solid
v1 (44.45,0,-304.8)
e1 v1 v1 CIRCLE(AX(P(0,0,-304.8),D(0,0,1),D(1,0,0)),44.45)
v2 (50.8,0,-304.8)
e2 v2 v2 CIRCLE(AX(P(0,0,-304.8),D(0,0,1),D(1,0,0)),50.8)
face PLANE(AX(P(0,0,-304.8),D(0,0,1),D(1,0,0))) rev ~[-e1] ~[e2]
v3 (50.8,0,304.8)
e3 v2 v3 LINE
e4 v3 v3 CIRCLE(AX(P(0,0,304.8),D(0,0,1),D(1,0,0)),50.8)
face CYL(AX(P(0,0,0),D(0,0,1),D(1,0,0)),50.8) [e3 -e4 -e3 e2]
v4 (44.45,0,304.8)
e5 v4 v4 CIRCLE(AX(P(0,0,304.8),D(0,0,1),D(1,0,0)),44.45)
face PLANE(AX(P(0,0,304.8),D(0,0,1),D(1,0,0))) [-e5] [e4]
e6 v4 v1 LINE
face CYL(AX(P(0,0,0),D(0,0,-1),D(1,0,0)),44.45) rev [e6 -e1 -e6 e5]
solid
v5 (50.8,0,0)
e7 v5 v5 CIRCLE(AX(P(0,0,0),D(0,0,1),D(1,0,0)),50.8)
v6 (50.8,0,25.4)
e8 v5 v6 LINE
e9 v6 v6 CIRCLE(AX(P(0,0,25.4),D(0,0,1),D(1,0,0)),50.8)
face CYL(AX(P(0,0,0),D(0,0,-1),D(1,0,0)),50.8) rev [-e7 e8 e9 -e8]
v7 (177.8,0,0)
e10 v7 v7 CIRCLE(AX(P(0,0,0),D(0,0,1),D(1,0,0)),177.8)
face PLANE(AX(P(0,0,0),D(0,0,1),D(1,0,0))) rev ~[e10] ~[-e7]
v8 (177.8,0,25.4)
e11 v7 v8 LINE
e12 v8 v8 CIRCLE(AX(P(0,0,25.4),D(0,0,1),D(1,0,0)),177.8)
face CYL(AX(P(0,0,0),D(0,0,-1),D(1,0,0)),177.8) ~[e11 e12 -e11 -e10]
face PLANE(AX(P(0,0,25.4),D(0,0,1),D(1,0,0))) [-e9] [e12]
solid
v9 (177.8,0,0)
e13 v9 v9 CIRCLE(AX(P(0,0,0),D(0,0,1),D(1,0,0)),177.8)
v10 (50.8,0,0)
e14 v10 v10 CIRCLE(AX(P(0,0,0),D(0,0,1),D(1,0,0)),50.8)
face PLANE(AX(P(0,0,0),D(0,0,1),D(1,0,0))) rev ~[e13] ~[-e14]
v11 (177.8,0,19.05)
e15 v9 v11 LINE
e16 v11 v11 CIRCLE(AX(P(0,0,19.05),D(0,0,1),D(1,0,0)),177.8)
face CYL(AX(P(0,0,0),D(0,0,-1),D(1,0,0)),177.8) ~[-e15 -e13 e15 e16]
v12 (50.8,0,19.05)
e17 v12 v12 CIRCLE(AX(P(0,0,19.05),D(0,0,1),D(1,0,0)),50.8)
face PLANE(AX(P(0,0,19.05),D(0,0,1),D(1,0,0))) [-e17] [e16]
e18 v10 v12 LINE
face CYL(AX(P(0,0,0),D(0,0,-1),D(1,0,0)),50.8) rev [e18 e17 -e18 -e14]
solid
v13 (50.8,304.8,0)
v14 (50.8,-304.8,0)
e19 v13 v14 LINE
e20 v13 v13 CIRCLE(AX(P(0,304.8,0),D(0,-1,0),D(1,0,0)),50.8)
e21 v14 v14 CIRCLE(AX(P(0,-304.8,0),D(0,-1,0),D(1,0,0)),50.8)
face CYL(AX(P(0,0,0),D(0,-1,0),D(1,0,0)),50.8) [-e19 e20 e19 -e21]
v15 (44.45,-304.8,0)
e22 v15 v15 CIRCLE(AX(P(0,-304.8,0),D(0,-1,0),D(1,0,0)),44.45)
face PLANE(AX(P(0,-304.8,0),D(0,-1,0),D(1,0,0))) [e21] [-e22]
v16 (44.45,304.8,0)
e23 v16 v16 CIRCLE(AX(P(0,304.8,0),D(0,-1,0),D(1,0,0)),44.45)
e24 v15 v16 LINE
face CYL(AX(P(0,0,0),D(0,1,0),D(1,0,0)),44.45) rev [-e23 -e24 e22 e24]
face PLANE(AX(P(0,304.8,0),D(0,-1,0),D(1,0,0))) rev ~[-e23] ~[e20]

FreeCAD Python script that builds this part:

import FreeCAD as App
import Part
import Sketcher
from FreeCAD import Vector
Q = App.Units.Quantity

doc = App.newDocument("Part")
body = doc.addObject("PartDesign::Body", "Body")

# Sketch on XZ plane
sketch1 = body.newObject("Sketcher::SketchObject", "Sketch")
sketch1.AttachmentSupport = (doc.getObject("XZ_Plane"), [""])
sketch1.MapMode = "FlatFace"
sketch1.addGeometry(Part.Circle(Vector(0, 0, 0), Vector(0, 0, 1), 50.8), False)
sketch1.addGeometry(Part.Circle(Vector(0, 0, 0), Vector(0, 0, 1), 44.45), False)
sketch1.addConstraint(Sketcher.Constraint("Coincident", 0, 3, -1, 1))
sketch1.addConstraint(Sketcher.Constraint("Coincident", 1, 3, -1, 1))
sketch1.addConstraint(Sketcher.Constraint("Diameter", 0, Q("4 in")))
sketch1.addConstraint(Sketcher.Constraint("Diameter", 1, Q("3.5 in")))
pad1 = body.newObject("PartDesign::Pad", "Pad")
pad1.Profile = sketch1
pad1.Length = Q("24 in")
pad1.Midplane = True
body2 = doc.addObject("PartDesign::Body", "Body001")

# Sketch on XY plane
sketch2 = body2.newObject("Sketcher::SketchObject", "Sketch001")
sketch2.AttachmentSupport = (doc.getObject("XY_Plane001"), [""])
sketch2.MapMode = "FlatFace"
sketch2.addGeometry(Part.Circle(Vector(0, 0, 0), Vector(0, 0, 1), 50.8), False)
sketch2.addGeometry(Part.Circle(Vector(0, 0, 0), Vector(0, 0, 1), 44.45), False)
sketch2.addConstraint(Sketcher.Constraint("Coincident", 0, 3, -1, 1))
sketch2.addConstraint(Sketcher.Constraint("Coincident", 1, 3, -1, 1))
sketch2.addConstraint(Sketcher.Constraint("Diameter", 0, Q("4 in")))
sketch2.addConstraint(Sketcher.Constraint("Diameter", 1, Q("3.5 in")))
pad2 = body2.newObject("PartDesign::Pad", "Pad001")
pad2.Profile = sketch2
pad2.Length = Q("24 in")
pad2.Midplane = True
body3 = doc.addObject("PartDesign::Body", "Body002")

# Sketch on XY plane
sketch3 = body3.newObject("Sketcher::SketchObject", "Sketch002")
sketch3.AttachmentSupport = (doc.getObject("XY_Plane002"), [""])
sketch3.MapMode = "FlatFace"
sketch3.addGeometry(Part.Circle(Vector(0, 0, 0), Vector(0, 0, 1), 177.8), False)
sketch3.addGeometry(Part.Circle(Vector(0, 0, 0), Vector(0, 0, 1), 50.8), False)
sketch3.addConstraint(Sketcher.Constraint("Coincident", 0, 3, -1, 1))
sketch3.addConstraint(Sketcher.Constraint("Coincident", 1, 3, -1, 1))
sketch3.addConstraint(Sketcher.Constraint("Diameter", 0, Q("14 in")))
sketch3.addConstraint(Sketcher.Constraint("Diameter", 1, Q("4 in")))
pad3 = body3.newObject("PartDesign::Pad", "Pad002")
pad3.Profile = sketch3
pad3.Length = Q("0.75 in")
body4 = doc.addObject("PartDesign::Body", "Body003")

# Sketch on XY plane
sketch4 = body4.newObject("Sketcher::SketchObject", "Sketch003")
sketch4.AttachmentSupport = (doc.getObject("XY_Plane003"), [""])
sketch4.MapMode = "FlatFace"
sketch4.addGeometry(Part.Circle(Vector(0, 0, 0), Vector(0, 0, 1), 177.8), False)
sketch4.addGeometry(Part.Circle(Vector(0, 0, 0), Vector(0, 0, 1), 50.8), False)
sketch4.addConstraint(Sketcher.Constraint("Coincident", 0, 3, -1, 1))
sketch4.addConstraint(Sketcher.Constraint("Coincident", 1, 3, -1, 1))
sketch4.addConstraint(Sketcher.Constraint("Diameter", 0, Q("14 in")))
sketch4.addConstraint(Sketcher.Constraint("Diameter", 1, Q("4 in")))
pad4 = body4.newObject("PartDesign::Pad", "Pad003")
pad4.Profile = sketch4
pad4.Length = Q("1 in")

doc.recompute()
